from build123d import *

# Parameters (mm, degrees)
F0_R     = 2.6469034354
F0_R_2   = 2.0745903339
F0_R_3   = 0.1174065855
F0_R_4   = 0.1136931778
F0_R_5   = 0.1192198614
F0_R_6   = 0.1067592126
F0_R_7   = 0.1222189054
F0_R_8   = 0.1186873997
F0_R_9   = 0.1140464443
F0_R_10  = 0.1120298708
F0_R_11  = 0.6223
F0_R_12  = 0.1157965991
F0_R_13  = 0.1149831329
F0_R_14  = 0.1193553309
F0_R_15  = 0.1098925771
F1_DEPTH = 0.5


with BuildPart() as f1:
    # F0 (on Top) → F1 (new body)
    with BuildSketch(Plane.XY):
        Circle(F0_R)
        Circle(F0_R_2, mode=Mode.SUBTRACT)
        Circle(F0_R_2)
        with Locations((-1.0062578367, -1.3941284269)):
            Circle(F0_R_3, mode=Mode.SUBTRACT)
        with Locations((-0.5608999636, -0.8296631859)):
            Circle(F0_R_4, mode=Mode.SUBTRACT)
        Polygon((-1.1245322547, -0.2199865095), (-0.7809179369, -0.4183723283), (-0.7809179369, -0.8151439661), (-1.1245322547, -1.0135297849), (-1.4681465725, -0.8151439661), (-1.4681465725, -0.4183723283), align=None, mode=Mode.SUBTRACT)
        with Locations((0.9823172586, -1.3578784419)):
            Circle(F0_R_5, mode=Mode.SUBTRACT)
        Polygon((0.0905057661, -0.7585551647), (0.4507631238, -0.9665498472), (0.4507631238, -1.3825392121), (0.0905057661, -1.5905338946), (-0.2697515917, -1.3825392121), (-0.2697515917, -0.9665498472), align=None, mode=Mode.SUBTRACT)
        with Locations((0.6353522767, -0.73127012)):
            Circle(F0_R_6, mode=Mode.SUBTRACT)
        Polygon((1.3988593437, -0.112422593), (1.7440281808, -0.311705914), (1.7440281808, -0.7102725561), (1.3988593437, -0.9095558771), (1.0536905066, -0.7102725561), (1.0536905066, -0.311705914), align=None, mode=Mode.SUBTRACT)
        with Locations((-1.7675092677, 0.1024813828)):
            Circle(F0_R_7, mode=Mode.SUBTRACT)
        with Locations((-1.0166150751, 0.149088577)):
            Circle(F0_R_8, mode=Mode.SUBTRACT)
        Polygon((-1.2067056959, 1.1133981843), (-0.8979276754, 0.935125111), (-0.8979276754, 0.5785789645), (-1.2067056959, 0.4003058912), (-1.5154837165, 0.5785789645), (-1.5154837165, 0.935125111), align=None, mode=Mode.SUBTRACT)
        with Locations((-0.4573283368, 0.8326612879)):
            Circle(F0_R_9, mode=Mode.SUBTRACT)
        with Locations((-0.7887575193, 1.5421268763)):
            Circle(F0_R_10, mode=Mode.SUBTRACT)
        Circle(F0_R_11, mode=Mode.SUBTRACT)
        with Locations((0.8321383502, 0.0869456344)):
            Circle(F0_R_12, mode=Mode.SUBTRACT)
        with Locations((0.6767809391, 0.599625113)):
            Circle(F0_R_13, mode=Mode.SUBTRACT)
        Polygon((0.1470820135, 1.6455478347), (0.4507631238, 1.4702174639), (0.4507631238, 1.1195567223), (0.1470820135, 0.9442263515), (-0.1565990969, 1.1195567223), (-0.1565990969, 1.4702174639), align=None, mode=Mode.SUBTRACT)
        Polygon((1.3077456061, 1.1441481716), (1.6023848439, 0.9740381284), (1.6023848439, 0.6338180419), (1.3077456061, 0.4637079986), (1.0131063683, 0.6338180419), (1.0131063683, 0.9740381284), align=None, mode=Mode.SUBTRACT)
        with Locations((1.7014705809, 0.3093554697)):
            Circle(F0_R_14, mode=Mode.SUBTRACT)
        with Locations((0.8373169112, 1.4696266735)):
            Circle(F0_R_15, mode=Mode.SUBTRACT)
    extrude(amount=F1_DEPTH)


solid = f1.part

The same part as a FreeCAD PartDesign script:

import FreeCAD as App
import Part
import Sketcher
from FreeCAD import Vector
Q = App.Units.Quantity

doc = App.newDocument("Part")
body = doc.addObject("PartDesign::Body", "Body")

sketch1 = doc.addObject("Sketcher::SketchObject", "Sketch")
body.addObject(sketch1)
sketch1.AttachmentSupport = (doc.XY_Plane, [""])
sketch1.MapMode = "FlatFace"
sketch1.addGeometry(Part.Circle(Vector(0, 0, 0), Vector(0, 0, 1), 2.65), False)
sketch1.addGeometry(Part.Circle(Vector(-1.01, -1.39, 0), Vector(0, 0, 1), 0.12), False)
sketch1.addGeometry(Part.Circle(Vector(-0.56, -0.83, 0), Vector(0, 0, 1), 0.11), False)
sketch1.addGeometry(Part.LineSegment(Vector(-1.47, -0.42, 0), Vector(-1.12, -0.22, 0)), False)
sketch1.addGeometry(Part.LineSegment(Vector(-1.12, -0.22, 0), Vector(-0.78, -0.42, 0)), False)
sketch1.addGeometry(Part.LineSegment(Vector(-0.78, -0.42, 0), Vector(-0.78, -0.82, 0)), False)
sketch1.addGeometry(Part.LineSegment(Vector(-0.78, -0.82, 0), Vector(-1.12, -1.01, 0)), False)
sketch1.addGeometry(Part.LineSegment(Vector(-1.12, -1.01, 0), Vector(-1.47, -0.82, 0)), False)
sketch1.addGeometry(Part.LineSegment(Vector(-1.47, -0.82, 0), Vector(-1.47, -0.42, 0)), False)
sketch1.addGeometry(Part.LineSegment(Vector(-0.27, -0.97, 0), Vector(0.09, -0.76, 0)), False)
sketch1.addGeometry(Part.LineSegment(Vector(0.09, -0.76, 0), Vector(0.45, -0.97, 0)), False)
sketch1.addGeometry(Part.LineSegment(Vector(0.45, -0.97, 0), Vector(0.45, -1.38, 0)), False)
sketch1.addGeometry(Part.LineSegment(Vector(0.45, -1.38, 0), Vector(0.09, -1.59, 0)), False)
sketch1.addGeometry(Part.LineSegment(Vector(0.09, -1.59, 0), Vector(-0.27, -1.38, 0)), False)
sketch1.addGeometry(Part.LineSegment(Vector(-0.27, -1.38, 0), Vector(-0.27, -0.97, 0)), False)
sketch1.addGeometry(Part.Circle(Vector(0.98, -1.36, 0), Vector(0, 0, 1), 0.12), False)
sketch1.addGeometry(Part.Circle(Vector(0.64, -0.73, 0), Vector(0, 0, 1), 0.11), False)
sketch1.addGeometry(Part.Circle(Vector(0, 0, 0), Vector(0, 0, 1), 0.62), False)
sketch1.addGeometry(Part.LineSegment(Vector(1.05, -0.31, 0), Vector(1.4, -0.11, 0)), False)
sketch1.addGeometry(Part.LineSegment(Vector(1.4, -0.11, 0), Vector(1.74, -0.31, 0)), False)
sketch1.addGeometry(Part.LineSegment(Vector(1.74, -0.31, 0), Vector(1.74, -0.71, 0)), False)
sketch1.addGeometry(Part.LineSegment(Vector(1.74, -0.71, 0), Vector(1.4, -0.91, 0)), False)
sketch1.addGeometry(Part.LineSegment(Vector(1.4, -0.91, 0), Vector(1.05, -0.71, 0)), False)
sketch1.addGeometry(Part.LineSegment(Vector(1.05, -0.71, 0), Vector(1.05, -0.31, 0)), False)
sketch1.addGeometry(Part.Circle(Vector(-1.77, 0.1, 0), Vector(0, 0, 1), 0.12), False)
sketch1.addGeometry(Part.Circle(Vector(-1.02, 0.15, 0), Vector(0, 0, 1), 0.12), False)
sketch1.addGeometry(Part.LineSegment(Vector(-1.52, 0.94, 0), Vector(-1.21, 1.11, 0)), False)
sketch1.addGeometry(Part.LineSegment(Vector(-1.21, 1.11, 0), Vector(-0.9, 0.94, 0)), False)
sketch1.addGeometry(Part.LineSegment(Vector(-0.9, 0.94, 0), Vector(-0.9, 0.58, 0)), False)
sketch1.addGeometry(Part.LineSegment(Vector(-0.9, 0.58, 0), Vector(-1.21, 0.4, 0)), False)
sketch1.addGeometry(Part.LineSegment(Vector(-1.21, 0.4, 0), Vector(-1.52, 0.58, 0)), False)
sketch1.addGeometry(Part.LineSegment(Vector(-1.52, 0.58, 0), Vector(-1.52, 0.94, 0)), False)
sketch1.addGeometry(Part.Circle(Vector(-0.46, 0.83, 0), Vector(0, 0, 1), 0.11), False)
sketch1.addGeometry(Part.Circle(Vector(-0.79, 1.54, 0), Vector(0, 0, 1), 0.11), False)
sketch1.addGeometry(Part.Circle(Vector(0.83, 0.09, 0), Vector(0, 0, 1), 0.12), False)
sketch1.addGeometry(Part.Circle(Vector(0.68, 0.6, 0), Vector(0, 0, 1), 0.11), False)
sketch1.addGeometry(Part.Circle(Vector(1.7, 0.31, 0), Vector(0, 0, 1), 0.12), False)
sketch1.addGeometry(Part.LineSegment(Vector(1.01, 0.97, 0), Vector(1.31, 1.14, 0)), False)
sketch1.addGeometry(Part.LineSegment(Vector(1.31, 1.14, 0), Vector(1.6, 0.97, 0)), False)
sketch1.addGeometry(Part.LineSegment(Vector(1.6, 0.97, 0), Vector(1.6, 0.63, 0)), False)
sketch1.addGeometry(Part.LineSegment(Vector(1.6, 0.63, 0), Vector(1.31, 0.46, 0)), False)
sketch1.addGeometry(Part.LineSegment(Vector(1.31, 0.46, 0), Vector(1.01, 0.63, 0)), False)
sketch1.addGeometry(Part.LineSegment(Vector(1.01, 0.63, 0), Vector(1.01, 0.97, 0)), False)
sketch1.addGeometry(Part.LineSegment(Vector(-0.16, 1.47, 0), Vector(0.15, 1.65, 0)), False)
sketch1.addGeometry(Part.LineSegment(Vector(0.15, 1.65, 0), Vector(0.45, 1.47, 0)), False)
sketch1.addGeometry(Part.LineSegment(Vector(0.45, 1.47, 0), Vector(0.45, 1.12, 0)), False)
sketch1.addGeometry(Part.LineSegment(Vector(0.45, 1.12, 0), Vector(0.15, 0.94, 0)), False)
sketch1.addGeometry(Part.LineSegment(Vector(0.15, 0.94, 0), Vector(-0.16, 1.12, 0)), False)
sketch1.addGeometry(Part.LineSegment(Vector(-0.16, 1.12, 0), Vector(-0.16, 1.47, 0)), False)
sketch1.addGeometry(Part.Circle(Vector(0.84, 1.47, 0), Vector(0, 0, 1), 0.11), False)
sketch1.addConstraint(Sketcher.Constraint("Coincident", 3, 2, 4, 1))
sketch1.addConstraint(Sketcher.Constraint("Coincident", 4, 2, 5, 1))
sketch1.addConstraint(Sketcher.Constraint("Coincident", 5, 2, 6, 1))
sketch1.addConstraint(Sketcher.Constraint("Coincident", 6, 2, 7, 1))
sketch1.addConstraint(Sketcher.Constraint("Coincident", 7, 2, 8, 1))
sketch1.addConstraint(Sketcher.Constraint("Coincident", 8, 2, 3, 1))
sketch1.addConstraint(Sketcher.Constraint("Coincident", 9, 2, 10, 1))
sketch1.addConstraint(Sketcher.Constraint("Coincident", 10, 2, 11, 1))
sketch1.addConstraint(Sketcher.Constraint("Coincident", 11, 2, 12, 1))
sketch1.addConstraint(Sketcher.Constraint("Coincident", 12, 2, 13, 1))
sketch1.addConstraint(Sketcher.Constraint("Coincident", 13, 2, 14, 1))
sketch1.addConstraint(Sketcher.Constraint("Coincident", 14, 2, 9, 1))
sketch1.addConstraint(Sketcher.Constraint("Coincident", 18, 2, 19, 1))
sketch1.addConstraint(Sketcher.Constraint("Coincident", 19, 2, 20, 1))
sketch1.addConstraint(Sketcher.Constraint("Coincident", 20, 2, 21, 1))
sketch1.addConstraint(Sketcher.Constraint("Coincident", 21, 2, 22, 1))
sketch1.addConstraint(Sketcher.Constraint("Coincident", 22, 2, 23, 1))
sketch1.addConstraint(Sketcher.Constraint("Coincident", 23, 2, 18, 1))
sketch1.addConstraint(Sketcher.Constraint("Coincident", 26, 2, 27, 1))
sketch1.addConstraint(Sketcher.Constraint("Coincident", 27, 2, 28, 1))
sketch1.addConstraint(Sketcher.Constraint("Coincident", 28, 2, 29, 1))
sketch1.addConstraint(Sketcher.Constraint("Coincident", 29, 2, 30, 1))
sketch1.addConstraint(Sketcher.Constraint("Coincident", 30, 2, 31, 1))
sketch1.addConstraint(Sketcher.Constraint("Coincident", 31, 2, 26, 1))
sketch1.addConstraint(Sketcher.Constraint("Coincident", 37, 2, 38, 1))
sketch1.addConstraint(Sketcher.Constraint("Coincident", 38, 2, 39, 1))
sketch1.addConstraint(Sketcher.Constraint("Coincident", 39, 2, 40, 1))
sketch1.addConstraint(Sketcher.Constraint("Coincident", 40, 2, 41, 1))
sketch1.addConstraint(Sketcher.Constraint("Coincident", 41, 2, 42, 1))
sketch1.addConstraint(Sketcher.Constraint("Coincident", 42, 2, 37, 1))
sketch1.addConstraint(Sketcher.Constraint("Coincident", 43, 2, 44, 1))
sketch1.addConstraint(Sketcher.Constraint("Coincident", 44, 2, 45, 1))
sketch1.addConstraint(Sketcher.Constraint("Coincident", 45, 2, 46, 1))
sketch1.addConstraint(Sketcher.Constraint("Coincident", 46, 2, 47, 1))
sketch1.addConstraint(Sketcher.Constraint("Coincident", 47, 2, 48, 1))
sketch1.addConstraint(Sketcher.Constraint("Coincident", 48, 2, 43, 1))
sketch1.addConstraint(Sketcher.Constraint("Vertical", 5))
sketch1.addConstraint(Sketcher.Constraint("Vertical", 8))
sketch1.addConstraint(Sketcher.Constraint("Vertical", 11))
sketch1.addConstraint(Sketcher.Constraint("Vertical", 14))
sketch1.addConstraint(Sketcher.Constraint("Vertical", 20))
sketch1.addConstraint(Sketcher.Constraint("Vertical", 23))
sketch1.addConstraint(Sketcher.Constraint("Vertical", 28))
sketch1.addConstraint(Sketcher.Constraint("Vertical", 31))
sketch1.addConstraint(Sketcher.Constraint("Vertical", 39))
sketch1.addConstraint(Sketcher.Constraint("Vertical", 42))
sketch1.addConstraint(Sketcher.Constraint("Vertical", 45))
sketch1.addConstraint(Sketcher.Constraint("Vertical", 48))
sketch1.addConstraint(Sketcher.Constraint("Coincident", 0, 3, -1, 1))
sketch1.addConstraint(Sketcher.Constraint("Coincident", 17, 3, -1, 1))
sketch1.addConstraint(Sketcher.Constraint("Parallel", 3, 6))
sketch1.addConstraint(Sketcher.Constraint("Parallel", 4, 7))
sketch1.addConstraint(Sketcher.Constraint("Parallel", 6, 9))
sketch1.addConstraint(Sketcher.Constraint("Parallel", 7, 10))
sketch1.addConstraint(Sketcher.Constraint("Parallel", 9, 12))
sketch1.addConstraint(Sketcher.Constraint("Parallel", 10, 13))
sketch1.addConstraint(Sketcher.Constraint("Parallel", 12, 18))
sketch1.addConstraint(Sketcher.Constraint("Parallel", 13, 19))
sketch1.addConstraint(Sketcher.Constraint("Parallel", 18, 21))
sketch1.addConstraint(Sketcher.Constraint("Parallel", 19, 22))
sketch1.addConstraint(Sketcher.Constraint("Parallel", 21, 26))
sketch1.addConstraint(Sketcher.Constraint("Parallel", 22, 27))
sketch1.addConstraint(Sketcher.Constraint("Parallel", 26, 29))
sketch1.addConstraint(Sketcher.Constraint("Parallel", 27, 30))
sketch1.addConstraint(Sketcher.Constraint("Parallel", 29, 37))
sketch1.addConstraint(Sketcher.Constraint("Parallel", 30, 38))
sketch1.addConstraint(Sketcher.Constraint("Parallel", 37, 40))
sketch1.addConstraint(Sketcher.Constraint("Parallel", 38, 41))
sketch1.addConstraint(Sketcher.Constraint("Parallel", 40, 43))
sketch1.addConstraint(Sketcher.Constraint("Parallel", 41, 44))
sketch1.addConstraint(Sketcher.Constraint("Parallel", 43, 46))
sketch1.addConstraint(Sketcher.Constraint("Parallel", 44, 47))
sketch1.addConstraint(Sketcher.Constraint("Horizontal", 5, 2, 7, 2))
sketch1.addConstraint(Sketcher.Constraint("Horizontal", 4, 2, 8, 2))
sketch1.addConstraint(Sketcher.Constraint("Horizontal", 11, 2, 13, 2))
sketch1.addConstraint(Sketcher.Constraint("Horizontal", 10, 2, 14, 2))
sketch1.addConstraint(Sketcher.Constraint("Horizontal", 20, 2, 22, 2))
sketch1.addConstraint(Sketcher.Constraint("Horizontal", 19, 2, 23, 2))
sketch1.addConstraint(Sketcher.Constraint("Horizontal", 28, 2, 30, 2))
sketch1.addConstraint(Sketcher.Constraint("Horizontal", 27, 2, 31, 2))
sketch1.addConstraint(Sketcher.Constraint("Horizontal", 39, 2, 41, 2))
sketch1.addConstraint(Sketcher.Constraint("Horizontal", 38, 2, 42, 2))
sketch1.addConstraint(Sketcher.Constraint("Horizontal", 45, 2, 47, 2))
sketch1.addConstraint(Sketcher.Constraint("Horizontal", 44, 2, 48, 2))
sketch1.addConstraint(Sketcher.Constraint("Vertical", 3, 2, 6, 2))
sketch1.addConstraint(Sketcher.Constraint("Vertical", 11, 2, 44, 2))
sketch1.addConstraint(Sketcher.Constraint("Angle", 3, Q("30 deg")))
sketch1.addConstraint(Sketcher.Constraint("Diameter", 17, Q("1.2446 mm")))
sketch1.addConstraint(Sketcher.Constraint("Diameter", 15, Q("0.23844 mm")))
sketch1.addConstraint(Sketcher.Constraint("Diameter", 16, Q("0.213518 mm")))
sketch1.addConstraint(Sketcher.Constraint("Diameter", 33, Q("0.22406 mm")))
sketch1.addConstraint(Sketcher.Constraint("Diameter", 36, Q("0.238711 mm")))
sketch1.addConstraint(Sketcher.Constraint("DistanceY", 35, 3, 49, 3, Q("0.870002 mm")))
sketch1.addConstraint(Sketcher.Constraint("Diameter", 0, Q("5.293807 mm")))
sketch1.addConstraint(Sketcher.Constraint("Diameter", 1, Q("0.234813 mm")))
sketch1.addConstraint(Sketcher.Constraint("Diameter", 2, Q("0.227386 mm")))
sketch1.addConstraint(Sketcher.Constraint("Diameter", 24, Q("0.244438 mm")))
sketch1.addConstraint(Sketcher.Constraint("Diameter", 25, Q("0.237375 mm")))
sketch1.addConstraint(Sketcher.Constraint("Diameter", 32, Q("0.228093 mm")))
sketch1.addConstraint(Sketcher.Constraint("Diameter", 34, Q("0.231593 mm")))
sketch1.addConstraint(Sketcher.Constraint("Diameter", 35, Q("0.229966 mm")))
sketch1.addConstraint(Sketcher.Constraint("Diameter", 49, Q("0.219785 mm")))
sketch1.addConstraint(Sketcher.Constraint("DistanceY", 27, 2, 33, 3, Q("0.607002 mm")))
sketch1.addConstraint(Sketcher.Constraint("DistanceY", 5, 2, 5, 1, Q("0.396772 mm")))
sketch1.addConstraint(Sketcher.Constraint("DistanceY", 11, 2, 11, 1, Q("0.415989 mm")))
sketch1.addConstraint(Sketcher.Constraint("DistanceY", 39, 2, 39, 1, Q("0.34022 mm")))
sketch1.addConstraint(Sketcher.Constraint("DistanceY", 45, 2, 45, 1, Q("0.350661 mm")))
sketch1.addConstraint(Sketcher.Constraint("DistanceX", 2, 3, -1, 1, Q("0.5609 mm")))
sketch1.addConstraint(Sketcher.Constraint("DistanceY", -1, 1, 26, 2, Q("1.113398 mm")))
sketch1.addConstraint(Sketcher.Constraint("DistanceX", 47, 2, -1, 1, Q("0.156599 mm")))
sketch1.addConstraint(Sketcher.Constraint("DistanceY", 49, 3, 33, 3, Q("0.0725 mm")))
sketch1.addConstraint(Sketcher.Constraint("DistanceY", 1, 3, 6, 2, Q("0.380599 mm")))
sketch1.addConstraint(Sketcher.Constraint("DistanceX", 27, 2, 32, 3, Q("0.440599 mm")))
sketch1.addConstraint(Sketcher.Constraint("DistanceX", 43, 2, 35, 3, Q("0.529699 mm")))
sketch1.addConstraint(Sketcher.Constraint("DistanceY", 35, 3, 46, 2, Q("0.344601 mm")))
sketch1.addConstraint(Sketcher.Constraint("Distance", 3, Q("0.396772 mm")))
sketch1.addConstraint(Sketcher.Constraint("Distance", 9, Q("0.415989 mm")))
sketch1.addConstraint(Sketcher.Constraint("Distance", 37, Q("0.34022 mm")))
sketch1.addConstraint(Sketcher.Constraint("Distance", 43, Q("0.350661 mm")))
sketch1.addConstraint(Sketcher.Constraint("DistanceY", 20, 2, 20, 1, Q("0.398567 mm")))
sketch1.addConstraint(Sketcher.Constraint("DistanceY", 28, 2, 28, 1, Q("0.356546 mm")))
sketch1.addConstraint(Sketcher.Constraint("DistanceY", 1, 3, -1, 1, Q("1.394128 mm")))
sketch1.addConstraint(Sketcher.Constraint("DistanceY", 15, 3, -1, 1, Q("1.357878 mm")))
sketch1.addConstraint(Sketcher.Constraint("DistanceY", 16, 3, -1, 1, Q("0.73127 mm")))
sketch1.addConstraint(Sketcher.Constraint("DistanceX", 24, 3, -1, 1, Q("1.767509 mm")))
sketch1.addConstraint(Sketcher.Constraint("DistanceY", -1, 1, 24, 3, Q("0.102481 mm")))
sketch1.addConstraint(Sketcher.Constraint("DistanceY", -1, 1, 25, 3, Q("0.149089 mm")))
sketch1.addConstraint(Sketcher.Constraint("DistanceX", 32, 3, -1, 1, Q("0.457328 mm")))
sketch1.addConstraint(Sketcher.Constraint("DistanceY", -1, 1, 32, 3, Q("0.832661 mm")))
sketch1.addConstraint(Sketcher.Constraint("DistanceX", -1, 1, 34, 3, Q("0.832138 mm")))
sketch1.addConstraint(Sketcher.Constraint("DistanceX", -1, 1, 36, 3, Q("1.701471 mm")))
sketch1.addConstraint(Sketcher.Constraint("DistanceY", 10, 2, -1, 1, Q("0.96655 mm")))
sketch1.addConstraint(Sketcher.Constraint("DistanceX", -1, 1, 18, 2, Q("1.398859 mm")))
sketch1.addConstraint(Sketcher.Constraint("DistanceX", -1, 1, 19, 2, Q("1.744028 mm")))
sketch1.addConstraint(Sketcher.Constraint("DistanceY", -1, 1, 28, 2, Q("0.578579 mm")))
sketch1.addConstraint(Sketcher.Constraint("DistanceY", -1, 1, 37, 2, Q("1.144148 mm")))
sketch1.addConstraint(Sketcher.Constraint("DistanceX", 1, 3, 16, 3, Q("1.64161 mm")))
sketch1.addConstraint(Sketcher.Constraint("DistanceX", 24, 3, 1, 3, Q("0.761251 mm")))
sketch1.addConstraint(Sketcher.Constraint("DistanceY", 2, 3, 25, 3, Q("0.978752 mm")))
sketch1.addConstraint(Sketcher.Constraint("DistanceX", 33, 3, 32, 3, Q("0.331429 mm")))
sketch1.addConstraint(Sketcher.Constraint("DistanceX", 34, 3, 15, 3, Q("0.150179 mm")))
sketch1.addConstraint(Sketcher.Constraint("DistanceY", 34, 3, 35, 3, Q("0.512679 mm")))
sketch1.addConstraint(Sketcher.Constraint("DistanceY", 34, 3, 36, 3, Q("0.22241 mm")))
sketch1.addConstraint(Sketcher.Constraint("DistanceX", 34, 3, 49, 3, Q("0.005179 mm")))
sketch1.addConstraint(Sketcher.Constraint("DistanceX", 1, 3, 5, 2, Q("0.22534 mm")))
sketch1.addConstraint(Sketcher.Constraint("DistanceY", 18, 2, 36, 3, Q("0.421778 mm")))
sketch1.addConstraint(Sketcher.Constraint("DistanceX", 26, 2, 25, 3, Q("0.190091 mm")))
sketch1.addConstraint(Sketcher.Constraint("DistanceX", 49, 3, 37, 2, Q("0.470429 mm")))
pad1 = doc.addObject("PartDesign::Pad", "Pad")
body.addObject(pad1)
pad1.Profile = sketch1
pad1.Length = 0.5

doc.recompute()
